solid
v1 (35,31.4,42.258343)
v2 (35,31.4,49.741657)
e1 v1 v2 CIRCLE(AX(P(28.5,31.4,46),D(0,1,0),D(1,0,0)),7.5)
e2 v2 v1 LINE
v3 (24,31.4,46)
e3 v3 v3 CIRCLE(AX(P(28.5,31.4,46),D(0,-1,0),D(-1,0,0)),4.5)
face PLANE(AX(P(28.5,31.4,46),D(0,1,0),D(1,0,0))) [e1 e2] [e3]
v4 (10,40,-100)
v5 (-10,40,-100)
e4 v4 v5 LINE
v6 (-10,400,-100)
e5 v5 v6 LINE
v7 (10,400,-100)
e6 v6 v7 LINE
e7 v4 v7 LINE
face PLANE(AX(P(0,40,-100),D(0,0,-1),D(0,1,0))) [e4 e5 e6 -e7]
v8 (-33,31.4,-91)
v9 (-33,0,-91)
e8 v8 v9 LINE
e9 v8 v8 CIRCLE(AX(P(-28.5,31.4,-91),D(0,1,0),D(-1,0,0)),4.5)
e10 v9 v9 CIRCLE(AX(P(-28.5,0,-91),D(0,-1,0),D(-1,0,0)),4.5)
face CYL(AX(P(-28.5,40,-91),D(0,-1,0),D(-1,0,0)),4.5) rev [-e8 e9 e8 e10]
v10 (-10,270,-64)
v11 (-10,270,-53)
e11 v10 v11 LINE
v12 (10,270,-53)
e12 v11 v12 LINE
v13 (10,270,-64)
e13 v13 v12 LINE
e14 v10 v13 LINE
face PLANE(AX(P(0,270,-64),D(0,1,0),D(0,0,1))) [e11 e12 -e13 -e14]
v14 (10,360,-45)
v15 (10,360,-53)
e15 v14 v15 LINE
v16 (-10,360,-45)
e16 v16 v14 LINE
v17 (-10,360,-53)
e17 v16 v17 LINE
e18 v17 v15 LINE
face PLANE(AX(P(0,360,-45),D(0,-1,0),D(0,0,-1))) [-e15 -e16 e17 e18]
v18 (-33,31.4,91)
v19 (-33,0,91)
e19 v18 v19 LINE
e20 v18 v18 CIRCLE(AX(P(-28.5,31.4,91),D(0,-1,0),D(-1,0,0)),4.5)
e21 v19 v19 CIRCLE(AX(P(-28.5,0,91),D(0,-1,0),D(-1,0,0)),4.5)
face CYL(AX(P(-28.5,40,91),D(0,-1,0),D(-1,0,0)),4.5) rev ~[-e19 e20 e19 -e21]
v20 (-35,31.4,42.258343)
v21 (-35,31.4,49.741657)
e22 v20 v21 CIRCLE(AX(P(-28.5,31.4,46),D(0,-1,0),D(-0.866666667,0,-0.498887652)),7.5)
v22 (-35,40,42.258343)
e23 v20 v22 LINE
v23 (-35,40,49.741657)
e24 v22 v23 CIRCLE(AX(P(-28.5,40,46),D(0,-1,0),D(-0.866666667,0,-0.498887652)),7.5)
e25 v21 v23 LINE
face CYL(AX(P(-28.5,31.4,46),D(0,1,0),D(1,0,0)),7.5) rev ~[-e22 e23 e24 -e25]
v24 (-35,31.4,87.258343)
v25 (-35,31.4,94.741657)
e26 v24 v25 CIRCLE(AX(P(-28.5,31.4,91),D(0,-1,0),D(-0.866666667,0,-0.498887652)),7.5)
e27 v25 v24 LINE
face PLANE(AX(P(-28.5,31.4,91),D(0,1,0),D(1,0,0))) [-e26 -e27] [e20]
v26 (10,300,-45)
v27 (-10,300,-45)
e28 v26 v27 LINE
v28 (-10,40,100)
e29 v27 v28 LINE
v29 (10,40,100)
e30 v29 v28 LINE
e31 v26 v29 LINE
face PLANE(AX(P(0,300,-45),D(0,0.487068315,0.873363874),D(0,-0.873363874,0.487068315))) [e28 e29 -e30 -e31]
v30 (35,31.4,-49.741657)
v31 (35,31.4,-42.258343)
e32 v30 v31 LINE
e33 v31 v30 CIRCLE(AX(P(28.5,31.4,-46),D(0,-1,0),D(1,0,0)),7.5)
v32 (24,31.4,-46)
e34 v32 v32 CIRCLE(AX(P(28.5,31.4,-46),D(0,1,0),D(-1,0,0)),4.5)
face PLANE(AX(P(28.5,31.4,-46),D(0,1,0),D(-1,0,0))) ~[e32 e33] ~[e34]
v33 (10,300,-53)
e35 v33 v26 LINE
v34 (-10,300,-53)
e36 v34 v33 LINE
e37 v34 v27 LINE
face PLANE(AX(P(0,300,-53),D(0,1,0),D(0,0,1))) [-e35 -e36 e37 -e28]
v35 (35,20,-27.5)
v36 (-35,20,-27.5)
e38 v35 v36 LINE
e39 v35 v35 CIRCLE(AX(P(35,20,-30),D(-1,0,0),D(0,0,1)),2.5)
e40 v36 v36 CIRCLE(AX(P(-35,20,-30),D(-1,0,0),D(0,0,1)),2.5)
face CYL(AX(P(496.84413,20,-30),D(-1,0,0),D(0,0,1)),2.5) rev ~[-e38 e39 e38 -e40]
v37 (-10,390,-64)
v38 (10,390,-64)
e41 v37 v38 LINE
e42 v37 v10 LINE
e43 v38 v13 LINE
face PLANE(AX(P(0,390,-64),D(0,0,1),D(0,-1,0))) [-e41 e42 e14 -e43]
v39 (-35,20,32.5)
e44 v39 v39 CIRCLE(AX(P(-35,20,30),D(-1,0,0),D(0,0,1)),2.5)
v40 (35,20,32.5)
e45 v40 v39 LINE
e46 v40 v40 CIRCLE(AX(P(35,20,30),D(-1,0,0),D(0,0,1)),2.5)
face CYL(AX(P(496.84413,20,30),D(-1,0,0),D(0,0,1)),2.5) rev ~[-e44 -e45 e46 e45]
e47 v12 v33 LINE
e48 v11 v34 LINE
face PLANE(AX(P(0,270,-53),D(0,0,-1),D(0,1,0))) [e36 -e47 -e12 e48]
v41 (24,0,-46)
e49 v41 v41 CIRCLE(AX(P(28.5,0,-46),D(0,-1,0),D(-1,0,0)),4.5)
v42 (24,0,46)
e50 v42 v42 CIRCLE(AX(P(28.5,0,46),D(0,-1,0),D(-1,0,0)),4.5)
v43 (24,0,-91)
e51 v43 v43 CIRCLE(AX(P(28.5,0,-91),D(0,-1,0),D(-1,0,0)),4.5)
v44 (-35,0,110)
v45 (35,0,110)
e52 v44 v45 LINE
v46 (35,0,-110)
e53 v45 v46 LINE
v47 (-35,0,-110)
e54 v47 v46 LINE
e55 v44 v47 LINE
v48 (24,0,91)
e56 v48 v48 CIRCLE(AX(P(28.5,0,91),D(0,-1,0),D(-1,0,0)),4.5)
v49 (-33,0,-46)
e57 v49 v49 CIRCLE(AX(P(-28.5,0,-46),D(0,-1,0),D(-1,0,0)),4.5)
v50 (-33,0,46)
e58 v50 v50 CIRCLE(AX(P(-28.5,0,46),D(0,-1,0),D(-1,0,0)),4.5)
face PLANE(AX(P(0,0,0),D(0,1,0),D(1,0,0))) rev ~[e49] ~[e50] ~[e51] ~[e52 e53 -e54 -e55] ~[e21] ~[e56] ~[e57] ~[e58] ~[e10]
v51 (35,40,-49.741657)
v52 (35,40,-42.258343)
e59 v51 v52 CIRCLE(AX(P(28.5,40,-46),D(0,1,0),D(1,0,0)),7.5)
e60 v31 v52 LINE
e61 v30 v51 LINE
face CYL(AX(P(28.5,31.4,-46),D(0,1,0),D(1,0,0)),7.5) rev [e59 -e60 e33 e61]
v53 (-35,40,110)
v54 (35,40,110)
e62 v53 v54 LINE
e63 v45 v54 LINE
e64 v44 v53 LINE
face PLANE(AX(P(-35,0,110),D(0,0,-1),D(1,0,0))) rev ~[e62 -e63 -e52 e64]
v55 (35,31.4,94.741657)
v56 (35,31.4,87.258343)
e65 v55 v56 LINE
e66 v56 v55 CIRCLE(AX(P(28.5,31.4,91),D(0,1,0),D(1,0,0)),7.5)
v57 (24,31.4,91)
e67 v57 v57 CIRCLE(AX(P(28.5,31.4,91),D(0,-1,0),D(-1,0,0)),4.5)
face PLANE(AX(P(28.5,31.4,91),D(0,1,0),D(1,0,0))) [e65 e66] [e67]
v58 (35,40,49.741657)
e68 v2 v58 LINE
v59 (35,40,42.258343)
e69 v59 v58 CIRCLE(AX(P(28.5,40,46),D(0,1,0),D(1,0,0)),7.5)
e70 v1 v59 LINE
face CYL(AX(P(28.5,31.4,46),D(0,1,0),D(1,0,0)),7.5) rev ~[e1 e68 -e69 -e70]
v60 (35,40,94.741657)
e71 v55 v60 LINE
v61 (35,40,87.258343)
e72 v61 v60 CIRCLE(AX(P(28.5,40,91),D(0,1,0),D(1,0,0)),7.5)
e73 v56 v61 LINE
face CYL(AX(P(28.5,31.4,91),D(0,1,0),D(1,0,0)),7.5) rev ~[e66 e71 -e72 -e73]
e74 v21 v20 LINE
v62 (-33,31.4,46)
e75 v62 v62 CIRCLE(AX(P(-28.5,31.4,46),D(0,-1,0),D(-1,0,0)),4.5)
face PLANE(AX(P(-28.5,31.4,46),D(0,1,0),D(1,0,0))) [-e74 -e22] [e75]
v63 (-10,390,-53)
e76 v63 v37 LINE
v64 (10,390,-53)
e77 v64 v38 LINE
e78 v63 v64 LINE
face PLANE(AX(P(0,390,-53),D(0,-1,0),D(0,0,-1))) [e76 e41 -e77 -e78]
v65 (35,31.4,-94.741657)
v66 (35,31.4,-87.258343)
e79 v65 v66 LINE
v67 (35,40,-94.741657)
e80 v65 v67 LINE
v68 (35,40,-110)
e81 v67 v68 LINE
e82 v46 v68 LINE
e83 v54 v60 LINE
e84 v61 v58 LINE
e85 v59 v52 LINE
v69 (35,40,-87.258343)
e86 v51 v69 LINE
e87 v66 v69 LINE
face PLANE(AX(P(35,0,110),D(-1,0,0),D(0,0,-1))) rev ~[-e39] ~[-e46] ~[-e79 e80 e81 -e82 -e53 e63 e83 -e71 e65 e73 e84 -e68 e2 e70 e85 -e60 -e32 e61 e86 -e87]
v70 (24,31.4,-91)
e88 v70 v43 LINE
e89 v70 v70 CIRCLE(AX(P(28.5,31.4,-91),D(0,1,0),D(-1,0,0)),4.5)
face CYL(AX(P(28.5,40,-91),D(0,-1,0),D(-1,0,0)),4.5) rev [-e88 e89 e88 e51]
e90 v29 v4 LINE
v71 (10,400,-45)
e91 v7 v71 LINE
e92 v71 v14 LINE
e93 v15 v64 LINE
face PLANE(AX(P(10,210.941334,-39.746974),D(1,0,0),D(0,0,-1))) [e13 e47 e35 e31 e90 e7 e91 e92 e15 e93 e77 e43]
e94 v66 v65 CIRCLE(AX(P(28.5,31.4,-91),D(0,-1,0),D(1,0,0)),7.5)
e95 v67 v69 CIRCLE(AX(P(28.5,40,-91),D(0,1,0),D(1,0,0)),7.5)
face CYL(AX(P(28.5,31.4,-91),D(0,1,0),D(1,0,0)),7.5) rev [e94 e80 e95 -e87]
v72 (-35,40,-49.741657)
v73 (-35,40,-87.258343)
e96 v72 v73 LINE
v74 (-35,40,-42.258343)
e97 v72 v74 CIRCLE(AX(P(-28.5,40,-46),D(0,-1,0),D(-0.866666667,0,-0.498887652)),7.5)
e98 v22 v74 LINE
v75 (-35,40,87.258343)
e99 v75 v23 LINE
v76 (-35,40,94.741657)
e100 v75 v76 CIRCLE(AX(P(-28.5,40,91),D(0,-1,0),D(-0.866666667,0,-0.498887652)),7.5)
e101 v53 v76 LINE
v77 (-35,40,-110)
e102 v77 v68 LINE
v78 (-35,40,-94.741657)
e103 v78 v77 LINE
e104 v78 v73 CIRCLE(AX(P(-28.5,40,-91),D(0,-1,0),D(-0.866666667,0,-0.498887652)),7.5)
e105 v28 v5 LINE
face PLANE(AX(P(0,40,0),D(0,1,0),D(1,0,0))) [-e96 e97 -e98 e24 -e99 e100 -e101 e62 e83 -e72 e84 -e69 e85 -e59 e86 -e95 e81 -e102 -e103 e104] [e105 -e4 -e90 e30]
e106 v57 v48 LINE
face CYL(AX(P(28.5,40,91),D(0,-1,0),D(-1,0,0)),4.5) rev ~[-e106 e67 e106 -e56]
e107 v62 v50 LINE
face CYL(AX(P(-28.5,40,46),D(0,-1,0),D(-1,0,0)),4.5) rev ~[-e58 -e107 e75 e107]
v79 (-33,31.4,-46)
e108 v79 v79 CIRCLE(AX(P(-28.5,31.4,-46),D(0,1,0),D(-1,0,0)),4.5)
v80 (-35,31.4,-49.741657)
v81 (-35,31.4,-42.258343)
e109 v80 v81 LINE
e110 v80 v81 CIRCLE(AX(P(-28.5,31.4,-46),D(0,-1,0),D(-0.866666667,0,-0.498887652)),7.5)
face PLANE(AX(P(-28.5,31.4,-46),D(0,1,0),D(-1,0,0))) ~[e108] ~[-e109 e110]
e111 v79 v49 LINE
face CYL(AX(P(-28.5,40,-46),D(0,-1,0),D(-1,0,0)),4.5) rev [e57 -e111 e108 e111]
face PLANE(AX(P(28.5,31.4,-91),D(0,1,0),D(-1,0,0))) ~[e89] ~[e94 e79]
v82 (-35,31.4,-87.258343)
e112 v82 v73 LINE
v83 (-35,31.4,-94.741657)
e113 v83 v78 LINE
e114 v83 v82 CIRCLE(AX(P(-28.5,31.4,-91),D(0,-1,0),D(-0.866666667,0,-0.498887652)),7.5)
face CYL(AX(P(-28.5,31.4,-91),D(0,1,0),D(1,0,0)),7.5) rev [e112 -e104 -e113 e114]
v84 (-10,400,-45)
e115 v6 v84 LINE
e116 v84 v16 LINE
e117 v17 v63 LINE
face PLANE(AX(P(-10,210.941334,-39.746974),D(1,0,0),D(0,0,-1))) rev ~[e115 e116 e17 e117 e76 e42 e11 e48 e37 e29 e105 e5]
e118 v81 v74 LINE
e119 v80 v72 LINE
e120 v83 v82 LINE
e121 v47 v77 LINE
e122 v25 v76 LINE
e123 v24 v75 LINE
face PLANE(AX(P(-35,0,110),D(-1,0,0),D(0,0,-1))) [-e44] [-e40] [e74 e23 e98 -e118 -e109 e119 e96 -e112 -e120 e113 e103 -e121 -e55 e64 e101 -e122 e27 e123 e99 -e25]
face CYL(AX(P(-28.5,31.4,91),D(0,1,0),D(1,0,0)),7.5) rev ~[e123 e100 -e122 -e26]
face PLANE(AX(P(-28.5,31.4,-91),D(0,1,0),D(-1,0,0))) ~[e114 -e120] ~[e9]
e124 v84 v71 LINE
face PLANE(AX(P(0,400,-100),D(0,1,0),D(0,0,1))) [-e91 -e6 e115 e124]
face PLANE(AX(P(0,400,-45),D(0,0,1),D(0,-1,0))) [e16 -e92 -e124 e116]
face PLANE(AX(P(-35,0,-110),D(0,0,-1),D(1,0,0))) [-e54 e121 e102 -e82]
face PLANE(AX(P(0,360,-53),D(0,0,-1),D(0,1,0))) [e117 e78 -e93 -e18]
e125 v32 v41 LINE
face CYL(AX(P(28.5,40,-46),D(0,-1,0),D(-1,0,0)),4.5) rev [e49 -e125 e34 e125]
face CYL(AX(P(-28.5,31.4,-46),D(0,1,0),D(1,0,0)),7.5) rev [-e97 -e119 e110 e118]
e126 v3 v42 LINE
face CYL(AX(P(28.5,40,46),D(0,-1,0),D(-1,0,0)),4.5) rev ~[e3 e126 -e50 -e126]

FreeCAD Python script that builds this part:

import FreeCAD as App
import Part
import Sketcher


def add_polygon(sketch, points):
    """Adds a closed chain of lines whose ends are joined by coincident constraints."""
    first, n = sketch.GeometryCount, len(points)
    for a, b in zip(points, points[1:] + points[:1]):
        sketch.addGeometry(Part.LineSegment(App.Vector(*a, 0), App.Vector(*b, 0)), False)
    for i in range(n):
        sketch.addConstraint(Sketcher.Constraint("Coincident", first + i, 2, first + (i + 1) % n, 1))

doc = App.newDocument("Part")
body = doc.addObject("PartDesign::Body", "Body")

# Sketch on XZ plane
sketch1 = body.newObject("Sketcher::SketchObject", "Sketch")
sketch1.AttachmentSupport = (doc.getObject("XZ_Plane"), [""])
sketch1.MapMode = "FlatFace"
add_polygon(sketch1, [(-35, -110), (-35, 110), (35, 110), (35, -110)])  # lines 0-3
sketch1.addConstraint([
    Sketcher.Constraint("Vertical", 0),
    Sketcher.Constraint("Horizontal", 1),
    Sketcher.Constraint("Vertical", 2),
    Sketcher.Constraint("Horizontal", 3),
    Sketcher.Constraint("Symmetric", 0, 2, 2, 2, -1, 1),
    Sketcher.Constraint("DistanceX", 1, 1, 1, 2, 70.0),
    Sketcher.Constraint("DistanceY", 0, 1, 0, 2, 220.0),
])
pad1 = body.newObject("PartDesign::Pad", "Pad")
pad1.Profile = sketch1
pad1.Length = 40
pad1.Reversed = True

# Sketch on XZ plane
sketch2 = body.newObject("Sketcher::SketchObject", "Sketch001")
sketch2.AttachmentSupport = (doc.getObject("XZ_Plane"), [""])
sketch2.MapMode = "FlatFace"
sketch2.AttachmentOffset = App.Placement(App.Vector(0, 0, -40), App.Rotation())
sketch2.addGeometry([
    Part.Circle(App.Vector(-28.5, 46, 0), App.Vector(0, 0, 1), 4.5),
    Part.Circle(App.Vector(28.5, 46, 0), App.Vector(0, 0, 1), 4.5),
    Part.Circle(App.Vector(28.5, 91, 0), App.Vector(0, 0, 1), 4.5),
    Part.Circle(App.Vector(-28.5, 91, 0), App.Vector(0, 0, 1), 4.5),
], False)
sketch2.addConstraint([
    Sketcher.Constraint("Equal", 0, 1),
    Sketcher.Constraint("Equal", 1, 2),
    Sketcher.Constraint("Equal", 2, 3),
    Sketcher.Constraint("Symmetric", 0, 3, 1, 3, -2),
    Sketcher.Constraint("Symmetric", 2, 3, 3, 3, -2),
    Sketcher.Constraint("Vertical", 1, 3, 2, 3),
    Sketcher.Constraint("Diameter", 0, 9.0),
    Sketcher.Constraint("DistanceY", -1, 1, 0, 3, 46.0),
    Sketcher.Constraint("DistanceY", -1, 1, 2, 3, 91.0),
    Sketcher.Constraint("DistanceX", 0, 3, 1, 3, 57.0),
])
doc.recompute()
hole = body.newObject("PartDesign::Hole", "Hole")
hole.Profile = sketch2
hole.ThreadType = "None"
hole.Diameter = 9
hole.DepthType = "ThroughAll"
hole.HoleCutType = "Counterbore"
hole.HoleCutDiameter = 15
hole.HoleCutDepth = 8.6
hole.Reversed = True
doc.recompute()

mirrored = body.newObject("PartDesign::Mirrored", "Mirrored")
mirrored.Originals = [hole]
mirrored.MirrorPlane = (doc.getObject("XY_Plane"), [""])
body.Tip = mirrored

# Sketch on YZ plane
sketch3 = body.newObject("Sketcher::SketchObject", "Sketch002")
sketch3.AttachmentSupport = (doc.getObject("YZ_Plane"), [""])
sketch3.MapMode = "FlatFace"
add_polygon(sketch3, [(40, -100), (400, -100), (400, -45), (360, -45), (360, -53), (390, -53), (390, -64), (270, -64), (270, -53), (300, -53), (300, -45), (40, 100)])  # lines 0-11
sketch3.addConstraint([
    Sketcher.Constraint("Horizontal", 0),
    Sketcher.Constraint("Vertical", 1),
    Sketcher.Constraint("Horizontal", 2),
    Sketcher.Constraint("Vertical", 3),
    Sketcher.Constraint("Horizontal", 4),
    Sketcher.Constraint("Vertical", 5),
    Sketcher.Constraint("Horizontal", 6),
    Sketcher.Constraint("Vertical", 7),
    Sketcher.Constraint("Horizontal", 8),
    Sketcher.Constraint("Vertical", 9),
    Sketcher.Constraint("Vertical", 11),
    Sketcher.Constraint("Horizontal", 4, 2, 7, 2),
    Sketcher.Constraint("Horizontal", 2, 2, 9, 2),
    Sketcher.Constraint("Equal", 4, 8),
    Sketcher.Constraint("DistanceX", 0, 1, 0, 2, 360.0),
    Sketcher.Constraint("DistanceX", 2, 2, 2, 1, 40.0),
    Sketcher.Constraint("DistanceX", 4, 1, 4, 2, 30.0),
    Sketcher.Constraint("DistanceX", 6, 2, 6, 1, 120.0),
    Sketcher.Constraint("DistanceY", 1, 1, 1, 2, 55.0),
    Sketcher.Constraint("DistanceY", 3, 2, 3, 1, 8.0),
    Sketcher.Constraint("DistanceY", 5, 2, 5, 1, 11.0),
    Sketcher.Constraint("DistanceY", 11, 2, 11, 1, 200.0),
    Sketcher.Constraint("DistanceX", -1, 1, 0, 2, 400.0),
    Sketcher.Constraint("DistanceY", 0, 2, -1, 1, 100.0),
])
pad2 = body.newObject("PartDesign::Pad", "Pad001")
pad2.Profile = sketch3
pad2.Length = 20
pad2.Midplane = True

# Sketch on YZ plane
sketch4 = body.newObject("Sketcher::SketchObject", "Sketch003")
sketch4.AttachmentSupport = (doc.getObject("YZ_Plane"), [""])
sketch4.MapMode = "FlatFace"
sketch4.AttachmentOffset = App.Placement(App.Vector(0, 0, 35), App.Rotation())
sketch4.addGeometry([
    Part.Circle(App.Vector(20, 30, 0), App.Vector(0, 0, 1), 2.5),
    Part.Circle(App.Vector(20, -30, 0), App.Vector(0, 0, 1), 2.5),
], False)
sketch4.addConstraint([
    Sketcher.Constraint("Equal", 0, 1),
    Sketcher.Constraint("Symmetric", 0, 3, 1, 3, -1),
    Sketcher.Constraint("Diameter", 0, 5.0),
    Sketcher.Constraint("DistanceX", -1, 1, 0, 3, 20.0),
    Sketcher.Constraint("DistanceY", -1, 1, 0, 3, 30.0),
])
doc.recompute()
hole2 = body.newObject("PartDesign::Hole", "Hole001")
hole2.Profile = sketch4
hole2.ThreadType = "None"
hole2.Diameter = 5
hole2.DepthType = "ThroughAll"

doc.recompute()
